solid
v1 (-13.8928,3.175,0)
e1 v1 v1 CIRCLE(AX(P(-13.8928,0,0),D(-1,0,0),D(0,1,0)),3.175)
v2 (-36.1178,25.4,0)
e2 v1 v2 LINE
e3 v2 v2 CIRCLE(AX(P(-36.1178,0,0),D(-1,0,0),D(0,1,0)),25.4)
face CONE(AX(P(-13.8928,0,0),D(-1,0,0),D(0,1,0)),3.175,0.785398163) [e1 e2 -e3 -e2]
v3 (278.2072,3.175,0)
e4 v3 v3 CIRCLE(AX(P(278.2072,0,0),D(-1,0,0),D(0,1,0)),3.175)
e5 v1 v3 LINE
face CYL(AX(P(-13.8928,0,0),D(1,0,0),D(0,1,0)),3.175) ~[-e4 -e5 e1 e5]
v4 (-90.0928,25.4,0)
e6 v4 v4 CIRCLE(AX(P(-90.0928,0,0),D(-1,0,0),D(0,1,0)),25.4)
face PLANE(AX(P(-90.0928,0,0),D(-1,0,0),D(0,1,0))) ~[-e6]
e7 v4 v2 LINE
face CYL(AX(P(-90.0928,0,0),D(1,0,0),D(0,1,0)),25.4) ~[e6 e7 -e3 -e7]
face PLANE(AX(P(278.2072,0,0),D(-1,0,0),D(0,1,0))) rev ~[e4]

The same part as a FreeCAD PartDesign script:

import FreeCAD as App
import Part
import Sketcher
Q = App.Units.Quantity


def add_polygon(sketch, points):
    """Adds a closed chain of lines whose ends are joined by coincident constraints."""
    first, n = sketch.GeometryCount, len(points)
    for a, b in zip(points, points[1:] + points[:1]):
        sketch.addGeometry(Part.LineSegment(App.Vector(*a, 0), App.Vector(*b, 0)), False)
    for i in range(n):
        sketch.addConstraint(Sketcher.Constraint("Coincident", first + i, 2, first + (i + 1) % n, 1))

doc = App.newDocument("Part")
body = doc.addObject("PartDesign::Body", "Body")

# Sketch on XY plane
sketch1 = body.newObject("Sketcher::SketchObject", "Sketch")
sketch1.AttachmentSupport = (doc.getObject("XY_Plane"), [""])
sketch1.MapMode = "FlatFace"
add_polygon(sketch1, [(278.2, 3.2), (-13.9, 3.2), (-36.1, 25.4), (-90.1, 25.4), (-90.1, 0), (278.2, 0)])  # lines 0-5
sketch1.addConstraint([
    Sketcher.Constraint("Horizontal", 0),
    Sketcher.Constraint("Horizontal", 2),
    Sketcher.Constraint("Vertical", 3),
    Sketcher.Constraint("Horizontal", 4),
    Sketcher.Constraint("Vertical", 5),
    Sketcher.Constraint("PointOnObject", 3, 2, -1),
    Sketcher.Constraint("DistanceY", 3, 2, 3, 1, Q("1 in")),
    Sketcher.Constraint("DistanceX", 0, 2, 0, 1, Q("11.5 in")),
    Sketcher.Constraint("DistanceX", 2, 2, 0, 2, Q("3 in")),
    Sketcher.Constraint("DistanceY", 5, 1, 5, 2, Q("0.125 in")),
    Sketcher.Constraint("Angle", 1, Q("135 deg")),
    Sketcher.Constraint("DistanceX", 0, 2, -1, 1, Q("13.8928 mm")),
])
revolution = body.newObject("PartDesign::Revolution", "Revolution")
revolution.Profile = sketch1
revolution.ReferenceAxis = (sketch1, ["H_Axis"])
revolution.Angle = 360

doc.recompute()
